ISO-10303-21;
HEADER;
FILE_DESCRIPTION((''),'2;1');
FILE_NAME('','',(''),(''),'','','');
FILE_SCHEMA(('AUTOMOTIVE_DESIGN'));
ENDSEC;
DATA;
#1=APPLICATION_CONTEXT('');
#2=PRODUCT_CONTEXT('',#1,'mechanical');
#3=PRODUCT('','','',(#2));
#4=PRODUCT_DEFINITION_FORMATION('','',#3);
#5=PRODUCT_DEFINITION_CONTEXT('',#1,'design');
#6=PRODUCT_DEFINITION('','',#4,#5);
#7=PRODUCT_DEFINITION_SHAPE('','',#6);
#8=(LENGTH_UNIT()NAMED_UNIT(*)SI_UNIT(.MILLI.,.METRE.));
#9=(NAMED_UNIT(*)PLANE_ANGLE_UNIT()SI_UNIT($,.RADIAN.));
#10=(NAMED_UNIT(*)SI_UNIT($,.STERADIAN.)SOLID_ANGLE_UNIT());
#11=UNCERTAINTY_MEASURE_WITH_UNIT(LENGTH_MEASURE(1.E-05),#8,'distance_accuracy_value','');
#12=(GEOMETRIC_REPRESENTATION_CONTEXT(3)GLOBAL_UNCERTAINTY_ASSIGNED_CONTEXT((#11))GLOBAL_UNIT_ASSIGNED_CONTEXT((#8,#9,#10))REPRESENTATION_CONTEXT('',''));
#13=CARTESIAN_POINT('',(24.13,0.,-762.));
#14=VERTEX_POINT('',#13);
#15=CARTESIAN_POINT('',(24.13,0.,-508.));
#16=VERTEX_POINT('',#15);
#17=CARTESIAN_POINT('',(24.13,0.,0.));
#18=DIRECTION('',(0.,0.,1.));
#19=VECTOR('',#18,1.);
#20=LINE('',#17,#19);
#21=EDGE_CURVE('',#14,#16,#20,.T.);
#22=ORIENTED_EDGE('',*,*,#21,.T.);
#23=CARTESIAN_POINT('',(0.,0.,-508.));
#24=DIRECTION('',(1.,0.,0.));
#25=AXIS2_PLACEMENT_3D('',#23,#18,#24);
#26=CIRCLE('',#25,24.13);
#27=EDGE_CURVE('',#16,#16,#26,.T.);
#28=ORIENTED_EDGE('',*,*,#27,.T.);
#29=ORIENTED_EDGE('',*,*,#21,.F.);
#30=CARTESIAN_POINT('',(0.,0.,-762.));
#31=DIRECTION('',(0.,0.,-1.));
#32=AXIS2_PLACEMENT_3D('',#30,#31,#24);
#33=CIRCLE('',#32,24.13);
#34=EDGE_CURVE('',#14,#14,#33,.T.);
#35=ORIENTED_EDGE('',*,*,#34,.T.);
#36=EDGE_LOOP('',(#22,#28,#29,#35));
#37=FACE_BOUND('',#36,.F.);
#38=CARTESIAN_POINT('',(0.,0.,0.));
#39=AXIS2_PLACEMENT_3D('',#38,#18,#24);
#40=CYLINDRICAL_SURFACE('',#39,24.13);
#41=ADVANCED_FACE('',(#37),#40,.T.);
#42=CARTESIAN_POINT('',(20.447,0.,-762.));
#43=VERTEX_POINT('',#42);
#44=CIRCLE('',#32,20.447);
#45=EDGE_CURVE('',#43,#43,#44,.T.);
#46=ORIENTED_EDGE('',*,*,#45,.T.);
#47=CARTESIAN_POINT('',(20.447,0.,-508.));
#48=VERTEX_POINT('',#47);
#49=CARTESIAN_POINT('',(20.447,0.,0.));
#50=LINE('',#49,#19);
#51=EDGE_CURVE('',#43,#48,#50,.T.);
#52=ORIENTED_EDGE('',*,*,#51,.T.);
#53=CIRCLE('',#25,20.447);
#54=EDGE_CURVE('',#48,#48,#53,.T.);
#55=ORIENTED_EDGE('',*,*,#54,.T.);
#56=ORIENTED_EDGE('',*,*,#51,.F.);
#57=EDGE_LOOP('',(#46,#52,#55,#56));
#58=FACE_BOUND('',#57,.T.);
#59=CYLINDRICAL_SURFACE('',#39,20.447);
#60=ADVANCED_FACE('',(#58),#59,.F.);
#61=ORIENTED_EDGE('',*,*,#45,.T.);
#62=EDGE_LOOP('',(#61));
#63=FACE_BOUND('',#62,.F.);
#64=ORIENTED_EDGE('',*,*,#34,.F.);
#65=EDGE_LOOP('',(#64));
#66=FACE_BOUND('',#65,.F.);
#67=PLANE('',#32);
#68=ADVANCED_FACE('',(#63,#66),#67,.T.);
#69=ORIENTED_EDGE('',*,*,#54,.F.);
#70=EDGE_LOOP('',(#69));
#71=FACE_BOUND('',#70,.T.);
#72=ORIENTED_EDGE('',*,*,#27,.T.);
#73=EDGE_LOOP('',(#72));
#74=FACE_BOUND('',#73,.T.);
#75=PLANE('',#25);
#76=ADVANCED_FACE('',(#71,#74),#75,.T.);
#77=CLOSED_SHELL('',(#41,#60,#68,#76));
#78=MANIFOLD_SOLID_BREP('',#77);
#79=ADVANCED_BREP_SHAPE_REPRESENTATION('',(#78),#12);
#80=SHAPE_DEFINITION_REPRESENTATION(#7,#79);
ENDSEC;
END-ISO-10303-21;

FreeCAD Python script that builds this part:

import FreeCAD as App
import Part
import Sketcher
Q = App.Units.Quantity


def add_polygon(sketch, points):
    """Adds a closed chain of lines whose ends are joined by coincident constraints."""
    first, n = sketch.GeometryCount, len(points)
    for a, b in zip(points, points[1:] + points[:1]):
        sketch.addGeometry(Part.LineSegment(App.Vector(*a, 0), App.Vector(*b, 0)), False)
    for i in range(n):
        sketch.addConstraint(Sketcher.Constraint("Coincident", first + i, 2, first + (i + 1) % n, 1))

doc = App.newDocument("Part")
body = doc.addObject("PartDesign::Body", "Body")

sketch1 = body.newObject("Sketcher::SketchObject", "Sketch")
sketch1.AttachmentSupport = (doc.getObject("XZ_Plane"), [""])
sketch1.MapMode = "FlatFace"
add_polygon(sketch1, [(20.4, 762), (20.4, -762), (24.1, -762), (24.1, 762)])
sketch1.addConstraint(Sketcher.Constraint("Vertical", 0))
sketch1.addConstraint(Sketcher.Constraint("Horizontal", 1))
sketch1.addConstraint(Sketcher.Constraint("Vertical", 2))
sketch1.addConstraint(Sketcher.Constraint("Horizontal", 3))
sketch1.addConstraint(Sketcher.Constraint("DistanceY", 0, 2, 0, 1, Q("60 in")))
sketch1.addConstraint(Sketcher.Constraint("DistanceY", 0, 2, -1, 1, Q("30 in")))
sketch1.addConstraint(Sketcher.Constraint("DistanceX", 1, 1, 1, 2, Q("0.145 in")))
sketch1.addConstraint(Sketcher.Constraint("DistanceX", -1, 1, 1, 2, Q("0.95 in")))
revolution = body.newObject("PartDesign::Revolution", "Revolution")
revolution.Profile = sketch1
revolution.ReferenceAxis = (sketch1, ["V_Axis"])
revolution.Angle = 360

sketch2 = body.newObject("Sketcher::SketchObject", "Sketch001")
sketch2.AttachmentSupport = (doc.getObject("XY_Plane"), [""])
sketch2.MapMode = "FlatFace"
sketch2.AttachmentOffset = App.Placement(App.Vector(0, 0, 30 * 25.4), App.Rotation())
sketch2.addGeometry(Part.Circle(App.Vector(0, 0, 0), App.Vector(0, 0, 1), 34), False)
sketch2.addConstraint(Sketcher.Constraint("Coincident", 0, 3, -1, 1))
sketch2.addConstraint(Sketcher.Constraint("Diameter", 0, 67.31059))
pocket1 = body.newObject("PartDesign::Pocket", "Pocket")
pocket1.Profile = sketch2
pocket1.Length = Q("50 in")

doc.recompute()
